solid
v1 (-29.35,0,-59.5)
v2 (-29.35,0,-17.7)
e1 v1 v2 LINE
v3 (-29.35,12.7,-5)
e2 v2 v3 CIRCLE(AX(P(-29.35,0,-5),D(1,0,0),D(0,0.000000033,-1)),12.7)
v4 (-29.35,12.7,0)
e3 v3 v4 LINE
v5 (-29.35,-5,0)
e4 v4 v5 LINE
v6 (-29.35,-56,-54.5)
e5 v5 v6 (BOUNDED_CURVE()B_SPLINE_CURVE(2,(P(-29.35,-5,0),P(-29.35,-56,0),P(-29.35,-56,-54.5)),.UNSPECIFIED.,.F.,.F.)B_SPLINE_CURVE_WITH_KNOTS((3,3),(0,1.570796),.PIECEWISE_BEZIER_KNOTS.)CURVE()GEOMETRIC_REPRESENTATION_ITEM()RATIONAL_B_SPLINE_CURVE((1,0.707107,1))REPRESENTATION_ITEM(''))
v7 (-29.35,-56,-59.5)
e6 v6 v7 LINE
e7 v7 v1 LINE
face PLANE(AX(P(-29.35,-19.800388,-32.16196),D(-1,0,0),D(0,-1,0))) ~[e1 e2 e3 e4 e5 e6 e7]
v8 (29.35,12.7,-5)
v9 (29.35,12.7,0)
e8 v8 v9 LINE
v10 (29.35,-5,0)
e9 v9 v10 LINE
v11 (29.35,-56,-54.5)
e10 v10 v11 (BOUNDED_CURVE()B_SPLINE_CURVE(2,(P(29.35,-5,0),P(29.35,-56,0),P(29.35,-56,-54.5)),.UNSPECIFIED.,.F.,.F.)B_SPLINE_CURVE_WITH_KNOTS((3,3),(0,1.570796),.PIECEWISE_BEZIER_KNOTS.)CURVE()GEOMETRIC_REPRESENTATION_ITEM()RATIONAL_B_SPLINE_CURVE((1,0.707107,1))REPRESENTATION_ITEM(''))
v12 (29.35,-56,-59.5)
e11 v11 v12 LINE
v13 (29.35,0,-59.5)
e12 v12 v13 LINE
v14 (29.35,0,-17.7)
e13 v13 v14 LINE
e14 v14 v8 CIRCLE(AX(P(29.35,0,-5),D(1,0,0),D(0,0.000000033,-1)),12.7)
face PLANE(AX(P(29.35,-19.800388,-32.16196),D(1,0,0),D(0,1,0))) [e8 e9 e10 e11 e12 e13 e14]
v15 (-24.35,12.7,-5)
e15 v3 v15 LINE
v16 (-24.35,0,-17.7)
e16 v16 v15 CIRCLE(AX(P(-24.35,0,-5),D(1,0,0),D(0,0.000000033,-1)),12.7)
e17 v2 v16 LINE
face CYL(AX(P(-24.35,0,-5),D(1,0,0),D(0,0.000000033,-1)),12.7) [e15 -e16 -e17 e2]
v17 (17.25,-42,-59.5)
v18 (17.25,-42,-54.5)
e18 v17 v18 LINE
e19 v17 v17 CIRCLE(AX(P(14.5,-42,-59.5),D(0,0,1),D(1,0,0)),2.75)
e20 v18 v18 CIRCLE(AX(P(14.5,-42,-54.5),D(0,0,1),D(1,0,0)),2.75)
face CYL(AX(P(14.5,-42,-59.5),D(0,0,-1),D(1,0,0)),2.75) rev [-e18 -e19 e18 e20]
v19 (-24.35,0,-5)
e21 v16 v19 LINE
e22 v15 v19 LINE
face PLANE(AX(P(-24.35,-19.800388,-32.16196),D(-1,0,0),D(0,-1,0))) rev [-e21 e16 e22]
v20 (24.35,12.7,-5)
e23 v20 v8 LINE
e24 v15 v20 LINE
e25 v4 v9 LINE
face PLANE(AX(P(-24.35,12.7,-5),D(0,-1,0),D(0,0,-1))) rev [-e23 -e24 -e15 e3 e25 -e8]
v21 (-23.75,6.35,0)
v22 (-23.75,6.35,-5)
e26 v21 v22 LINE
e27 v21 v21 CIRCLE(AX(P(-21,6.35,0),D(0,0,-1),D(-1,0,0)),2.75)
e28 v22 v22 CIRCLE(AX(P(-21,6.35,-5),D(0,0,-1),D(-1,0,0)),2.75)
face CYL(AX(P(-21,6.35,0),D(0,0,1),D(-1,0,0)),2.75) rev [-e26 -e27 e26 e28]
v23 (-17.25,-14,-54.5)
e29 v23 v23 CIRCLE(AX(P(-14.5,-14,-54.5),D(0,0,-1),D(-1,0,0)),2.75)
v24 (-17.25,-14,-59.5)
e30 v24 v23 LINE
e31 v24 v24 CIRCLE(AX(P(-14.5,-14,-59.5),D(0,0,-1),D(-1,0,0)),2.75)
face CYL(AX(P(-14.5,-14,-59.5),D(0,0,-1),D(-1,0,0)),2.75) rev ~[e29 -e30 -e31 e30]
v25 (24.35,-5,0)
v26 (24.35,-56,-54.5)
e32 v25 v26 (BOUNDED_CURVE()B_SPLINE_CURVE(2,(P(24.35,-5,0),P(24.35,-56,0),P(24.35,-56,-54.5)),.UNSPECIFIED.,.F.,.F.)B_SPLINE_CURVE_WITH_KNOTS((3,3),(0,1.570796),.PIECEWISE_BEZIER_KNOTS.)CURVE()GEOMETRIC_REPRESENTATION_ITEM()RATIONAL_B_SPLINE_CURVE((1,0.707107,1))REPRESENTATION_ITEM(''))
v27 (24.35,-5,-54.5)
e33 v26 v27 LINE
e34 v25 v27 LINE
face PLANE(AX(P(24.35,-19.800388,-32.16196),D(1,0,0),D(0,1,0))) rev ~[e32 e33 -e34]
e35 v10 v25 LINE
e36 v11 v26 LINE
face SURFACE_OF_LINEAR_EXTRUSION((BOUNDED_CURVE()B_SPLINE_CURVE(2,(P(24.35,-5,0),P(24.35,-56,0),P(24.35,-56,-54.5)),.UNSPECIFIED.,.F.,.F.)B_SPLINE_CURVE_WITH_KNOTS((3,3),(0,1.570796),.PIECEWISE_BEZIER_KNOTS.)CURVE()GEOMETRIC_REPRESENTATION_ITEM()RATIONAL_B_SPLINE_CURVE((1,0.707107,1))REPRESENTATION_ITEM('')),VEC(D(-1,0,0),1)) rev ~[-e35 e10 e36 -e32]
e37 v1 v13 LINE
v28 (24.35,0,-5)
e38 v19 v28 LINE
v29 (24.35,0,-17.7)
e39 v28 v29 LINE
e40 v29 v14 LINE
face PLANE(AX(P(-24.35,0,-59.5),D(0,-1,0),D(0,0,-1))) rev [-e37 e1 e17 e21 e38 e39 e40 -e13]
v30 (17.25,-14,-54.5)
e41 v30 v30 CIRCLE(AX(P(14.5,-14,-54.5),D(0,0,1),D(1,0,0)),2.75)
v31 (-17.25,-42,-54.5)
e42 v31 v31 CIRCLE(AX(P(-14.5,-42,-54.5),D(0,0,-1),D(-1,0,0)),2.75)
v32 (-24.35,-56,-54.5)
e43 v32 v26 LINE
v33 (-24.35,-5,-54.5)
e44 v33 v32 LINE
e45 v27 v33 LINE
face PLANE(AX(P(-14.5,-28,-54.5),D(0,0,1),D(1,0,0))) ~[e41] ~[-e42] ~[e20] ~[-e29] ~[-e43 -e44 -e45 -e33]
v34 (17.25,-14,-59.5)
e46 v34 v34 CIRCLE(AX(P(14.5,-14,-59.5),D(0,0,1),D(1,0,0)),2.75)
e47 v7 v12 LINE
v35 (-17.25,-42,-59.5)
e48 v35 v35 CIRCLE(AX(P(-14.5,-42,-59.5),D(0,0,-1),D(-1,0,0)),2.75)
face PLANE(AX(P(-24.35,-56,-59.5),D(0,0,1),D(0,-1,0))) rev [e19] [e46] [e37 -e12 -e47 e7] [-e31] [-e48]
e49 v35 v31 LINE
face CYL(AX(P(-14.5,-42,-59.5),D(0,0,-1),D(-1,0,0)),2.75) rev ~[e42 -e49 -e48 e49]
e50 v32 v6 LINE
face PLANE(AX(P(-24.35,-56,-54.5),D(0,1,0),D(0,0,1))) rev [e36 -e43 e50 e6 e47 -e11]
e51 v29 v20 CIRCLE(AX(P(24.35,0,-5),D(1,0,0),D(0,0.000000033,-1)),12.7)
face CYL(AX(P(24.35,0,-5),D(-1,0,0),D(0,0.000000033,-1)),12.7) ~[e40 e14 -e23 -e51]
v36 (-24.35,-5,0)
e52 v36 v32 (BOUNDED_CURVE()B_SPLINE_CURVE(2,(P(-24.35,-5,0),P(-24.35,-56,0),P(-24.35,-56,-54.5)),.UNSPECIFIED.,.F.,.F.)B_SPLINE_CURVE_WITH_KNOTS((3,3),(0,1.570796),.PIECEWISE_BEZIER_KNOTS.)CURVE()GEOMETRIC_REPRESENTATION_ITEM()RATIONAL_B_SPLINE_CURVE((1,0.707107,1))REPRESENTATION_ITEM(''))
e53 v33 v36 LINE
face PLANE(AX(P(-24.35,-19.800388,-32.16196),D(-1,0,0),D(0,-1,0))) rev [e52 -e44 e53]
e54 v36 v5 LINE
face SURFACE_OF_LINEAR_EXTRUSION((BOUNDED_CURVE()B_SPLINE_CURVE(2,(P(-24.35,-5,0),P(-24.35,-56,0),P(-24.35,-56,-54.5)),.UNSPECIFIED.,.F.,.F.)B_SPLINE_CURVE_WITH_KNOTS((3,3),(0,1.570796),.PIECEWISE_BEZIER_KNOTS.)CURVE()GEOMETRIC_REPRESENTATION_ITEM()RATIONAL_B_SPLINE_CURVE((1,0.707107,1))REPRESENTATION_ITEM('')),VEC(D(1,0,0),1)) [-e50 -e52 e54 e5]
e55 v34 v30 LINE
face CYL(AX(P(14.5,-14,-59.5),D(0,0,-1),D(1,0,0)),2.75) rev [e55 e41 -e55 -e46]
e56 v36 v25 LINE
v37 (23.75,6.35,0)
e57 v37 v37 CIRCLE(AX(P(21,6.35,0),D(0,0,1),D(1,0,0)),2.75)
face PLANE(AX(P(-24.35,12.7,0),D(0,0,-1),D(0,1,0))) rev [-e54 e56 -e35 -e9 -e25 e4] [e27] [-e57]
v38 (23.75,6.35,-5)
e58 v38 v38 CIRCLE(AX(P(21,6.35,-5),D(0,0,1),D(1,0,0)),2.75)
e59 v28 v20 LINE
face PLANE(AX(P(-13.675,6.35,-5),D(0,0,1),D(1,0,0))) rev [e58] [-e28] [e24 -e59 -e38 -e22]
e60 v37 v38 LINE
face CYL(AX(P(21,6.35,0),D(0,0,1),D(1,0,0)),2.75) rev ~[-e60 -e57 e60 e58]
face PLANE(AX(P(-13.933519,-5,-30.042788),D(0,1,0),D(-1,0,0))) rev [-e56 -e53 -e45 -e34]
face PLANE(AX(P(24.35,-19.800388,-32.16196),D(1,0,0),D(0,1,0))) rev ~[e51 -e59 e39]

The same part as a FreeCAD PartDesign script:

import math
import FreeCAD as App
import Part
import Sketcher

V = App.Vector


def add_polygon(sketch, points):
    """Adds a closed chain of lines whose ends are joined by coincident constraints."""
    first, n = sketch.GeometryCount, len(points)
    for a, b in zip(points, points[1:] + points[:1]):
        sketch.addGeometry(Part.LineSegment(App.Vector(*a, 0), App.Vector(*b, 0)), False)
    for i in range(n):
        sketch.addConstraint(Sketcher.Constraint("Coincident", first + i, 2, first + (i + 1) % n, 1))

doc = App.newDocument("Part")
body = doc.addObject("PartDesign::Body", "Body")

# Sketch on XY plane
sketch1 = doc.addObject("Sketcher::SketchObject", "Sketch")
body.addObject(sketch1)
sketch1.AttachmentSupport = (doc.XY_Plane, [""])
sketch1.MapMode = "FlatFace"
add_polygon(sketch1, [(0, 12.7), (0, 0), (27.35, 0), (27.35, 12.7)])  # lines 0-3
sketch1.addGeometry(Part.Circle(V(21, 6.35, 0), V(0, 0, 1), 2.75), False)  # 4
sketch1.addConstraint([
    Sketcher.Constraint("Vertical", 0),
    Sketcher.Constraint("Horizontal", 1),
    Sketcher.Constraint("Vertical", 2),
    Sketcher.Constraint("Horizontal", 3),
    Sketcher.Constraint("Coincident", 0, 2, -1, 1),
    Sketcher.Constraint("Diameter", 4, 5.5),
    Sketcher.Constraint("DistanceY", 0, 2, 0, 1, 12.7),
    Sketcher.Constraint("DistanceX", -1, 1, 4, 3, 21.0),
    Sketcher.Constraint("DistanceX", 1, 1, 1, 2, 27.35),
    Sketcher.Constraint("DistanceY", -1, 1, 4, 3, 6.35),
])
pad1 = doc.addObject("PartDesign::Pad", "Pad")
body.addObject(pad1)
pad1.Profile = sketch1
pad1.Length = 5
pad1.Reversed = True

# Sketch on XZ plane
sketch2 = doc.addObject("Sketcher::SketchObject", "Sketch001")
body.addObject(sketch2)
sketch2.AttachmentSupport = (doc.XZ_Plane, [""])
sketch2.MapMode = "FlatFace"
sketch2.addGeometry([
    Part.LineSegment(V(27.35, -40.764007, 0), V(27.35, 0, 0)),  # 0
    Part.LineSegment(V(27.35, 0, 0), V(0, 0, 0)),  # 1
    Part.LineSegment(V(0, 0, 0), V(0, -59.5, 0)),  # 2
    Part.LineSegment(V(0, -59.5, 0), V(29, -59.5, 0)),  # 3
    Part.LineSegment(V(29, -59.5, 0), V(29, -54.5, 0)),  # 4
    Part.ArcOfCircle(Part.Circle(V(-0.00003, -54.500004, 0), V(0, 0, 1), 29.00003), math.radians(0.000008), math.radians(13.699363)),  # 5
    Part.ArcOfCircle(Part.Circle(V(56.350047, -40.764002, 0), V(0, 0, 1), 29.000047), math.radians(-179.99999), math.radians(-166.300641)),  # 6
], False)
sketch2.addConstraint([
    Sketcher.Constraint("Coincident", 0, 2, 1, 1),
    Sketcher.Constraint("Coincident", 1, 2, 2, 1),
    Sketcher.Constraint("Coincident", 2, 2, 3, 1),
    Sketcher.Constraint("Coincident", 3, 2, 4, 1),
    Sketcher.Constraint("Coincident", 4, 2, 5, 1),
    Sketcher.Constraint("Coincident", 5, 2, 6, 2),
    Sketcher.Constraint("Coincident", 6, 1, 0, 1),
    Sketcher.Constraint("Vertical", 0),
    Sketcher.Constraint("Horizontal", 1),
    Sketcher.Constraint("Vertical", 2),
    Sketcher.Constraint("Horizontal", 3),
    Sketcher.Constraint("Vertical", 4),
    Sketcher.Constraint("Coincident", 1, 2, -1, 1),
    Sketcher.Constraint("DistanceX", 3, 1, 3, 2, 29.0),
    Sketcher.Constraint("DistanceY", 4, 1, 4, 2, 5.0),
    Sketcher.Constraint("DistanceY", 2, 2, 2, 1, 59.5),
    Sketcher.Constraint("DistanceX", 1, 2, 1, 1, 27.35),
    Sketcher.Constraint("Radius", 5, 29.00003),
    Sketcher.Constraint("DistanceY", 6, 3, -1, 1, 40.764002),
    Sketcher.Constraint("DistanceX", -1, 1, 5, 2, 28.175),
    Sketcher.Constraint("Radius", 6, 29.000047),
    Sketcher.Constraint("DistanceY", 0, 1, 0, 2, 40.764007),
])
pad2 = doc.addObject("PartDesign::Pad", "Pad001")
body.addObject(pad2)
pad2.Profile = sketch2
pad2.Length = 5

# Sketch on XY plane
sketch3 = doc.addObject("Sketcher::SketchObject", "Sketch002")
body.addObject(sketch3)
sketch3.AttachmentSupport = (doc.XY_Plane, [""])
sketch3.MapMode = "FlatFace"
sketch3.AttachmentOffset = App.Placement(V(0, 0, -59.5), App.Rotation())
add_polygon(sketch3, [(0, 0), (0, -56), (29, -56), (29, 0)])  # lines 0-3
sketch3.addGeometry(Part.Circle(V(14.5, -42, 0), V(0, 0, 1), 2.75), False)  # 4
sketch3.addGeometry(Part.Circle(V(14.5, -14, 0), V(0, 0, 1), 2.75), False)  # 5
sketch3.addConstraint([
    Sketcher.Constraint("Vertical", 0),
    Sketcher.Constraint("Horizontal", 1),
    Sketcher.Constraint("Vertical", 2),
    Sketcher.Constraint("Horizontal", 3),
    Sketcher.Constraint("Coincident", 3, 2, -1, 1),
    Sketcher.Constraint("Equal", 4, 5),
    Sketcher.Constraint("Vertical", 4, 3, 5, 3),
    Sketcher.Constraint("Diameter", 4, 5.5),
    Sketcher.Constraint("DistanceX", 1, 1, 1, 2, 29.0),
    Sketcher.Constraint("DistanceY", 0, 2, 0, 1, 56.0),
    Sketcher.Constraint("DistanceY", 4, 3, -1, 1, 42.0),
    Sketcher.Constraint("DistanceY", 5, 3, -1, 1, 14.0),
    Sketcher.Constraint("DistanceX", -1, 1, 4, 3, 14.5),
])
pad3 = doc.addObject("PartDesign::Pad", "Pad002")
body.addObject(pad3)
pad3.Profile = sketch3
pad3.Length = 5

# Sketch on YZ plane
sketch4 = doc.addObject("Sketcher::SketchObject", "Sketch003")
body.addObject(sketch4)
sketch4.AttachmentSupport = (doc.YZ_Plane, [""])
sketch4.MapMode = "FlatFace"
sketch4.AttachmentOffset = App.Placement(V(0, 0, 24.35), App.Rotation())
sketch4.addGeometry([
    Part.LineSegment(V(-56, -54.5, 0), V(-56, -59.5, 0)),  # 0
    Part.LineSegment(V(-56, -59.5, 0), V(0, -59.5, 0)),  # 1
    Part.LineSegment(V(0, -59.5, 0), V(0, -17.7, 0)),  # 2
    Part.ArcOfCircle(Part.Circle(V(0, -5, 0), V(0, 0, 1), 12.7), math.radians(-89.999998), math.radians(-0.000002)),  # 3
    Part.LineSegment(V(12.7, -5, 0), V(12.7, 0, 0)),  # 4
    Part.LineSegment(V(12.7, 0, 0), V(-5, 0, 0)),  # 5
    Part.BSplineCurve([V(-5, 0, 0), V(-56, 0, 0), V(-56, -54.5, 0)], [3, 3], [0, 1.570796], False, 2, [1, 0.707107, 1], False),  # 6
], False)
sketch4.addConstraint([
    Sketcher.Constraint("Block", 6),
    Sketcher.Constraint("Coincident", 0, 2, 1, 1),
    Sketcher.Constraint("Coincident", 1, 2, 2, 1),
    Sketcher.Constraint("Coincident", 2, 2, 3, 1),
    Sketcher.Constraint("Tangent", 3, 2, 4, 1),
    Sketcher.Constraint("Coincident", 4, 2, 5, 1),
    Sketcher.Constraint("Coincident", 5, 2, 6, 1),
    Sketcher.Constraint("Coincident", 6, 2, 0, 1),
    Sketcher.Constraint("Vertical", 0),
    Sketcher.Constraint("Horizontal", 1),
    Sketcher.Constraint("Vertical", 2),
    Sketcher.Constraint("Vertical", 4),
    Sketcher.Constraint("Horizontal", 5),
    Sketcher.Constraint("PointOnObject", 3, 3, -2),
    Sketcher.Constraint("PointOnObject", 1, 2, -2),
    Sketcher.Constraint("Equal", 0, 4),
    Sketcher.Constraint("Radius", 3, 12.7),
    Sketcher.Constraint("DistanceY", 0, 2, 0, 1, 5.0),
])
pad4 = doc.addObject("PartDesign::Pad", "Pad003")
body.addObject(pad4)
pad4.Profile = sketch4
pad4.Length = 5
doc.recompute()

mirrored = doc.addObject("PartDesign::Mirrored", "Mirrored")
body.addObject(mirrored)
mirrored.Originals = [pad1, pad2, pad3, pad4]
mirrored.MirrorPlane = (doc.YZ_Plane, [""])
body.Tip = mirrored

doc.recompute()
